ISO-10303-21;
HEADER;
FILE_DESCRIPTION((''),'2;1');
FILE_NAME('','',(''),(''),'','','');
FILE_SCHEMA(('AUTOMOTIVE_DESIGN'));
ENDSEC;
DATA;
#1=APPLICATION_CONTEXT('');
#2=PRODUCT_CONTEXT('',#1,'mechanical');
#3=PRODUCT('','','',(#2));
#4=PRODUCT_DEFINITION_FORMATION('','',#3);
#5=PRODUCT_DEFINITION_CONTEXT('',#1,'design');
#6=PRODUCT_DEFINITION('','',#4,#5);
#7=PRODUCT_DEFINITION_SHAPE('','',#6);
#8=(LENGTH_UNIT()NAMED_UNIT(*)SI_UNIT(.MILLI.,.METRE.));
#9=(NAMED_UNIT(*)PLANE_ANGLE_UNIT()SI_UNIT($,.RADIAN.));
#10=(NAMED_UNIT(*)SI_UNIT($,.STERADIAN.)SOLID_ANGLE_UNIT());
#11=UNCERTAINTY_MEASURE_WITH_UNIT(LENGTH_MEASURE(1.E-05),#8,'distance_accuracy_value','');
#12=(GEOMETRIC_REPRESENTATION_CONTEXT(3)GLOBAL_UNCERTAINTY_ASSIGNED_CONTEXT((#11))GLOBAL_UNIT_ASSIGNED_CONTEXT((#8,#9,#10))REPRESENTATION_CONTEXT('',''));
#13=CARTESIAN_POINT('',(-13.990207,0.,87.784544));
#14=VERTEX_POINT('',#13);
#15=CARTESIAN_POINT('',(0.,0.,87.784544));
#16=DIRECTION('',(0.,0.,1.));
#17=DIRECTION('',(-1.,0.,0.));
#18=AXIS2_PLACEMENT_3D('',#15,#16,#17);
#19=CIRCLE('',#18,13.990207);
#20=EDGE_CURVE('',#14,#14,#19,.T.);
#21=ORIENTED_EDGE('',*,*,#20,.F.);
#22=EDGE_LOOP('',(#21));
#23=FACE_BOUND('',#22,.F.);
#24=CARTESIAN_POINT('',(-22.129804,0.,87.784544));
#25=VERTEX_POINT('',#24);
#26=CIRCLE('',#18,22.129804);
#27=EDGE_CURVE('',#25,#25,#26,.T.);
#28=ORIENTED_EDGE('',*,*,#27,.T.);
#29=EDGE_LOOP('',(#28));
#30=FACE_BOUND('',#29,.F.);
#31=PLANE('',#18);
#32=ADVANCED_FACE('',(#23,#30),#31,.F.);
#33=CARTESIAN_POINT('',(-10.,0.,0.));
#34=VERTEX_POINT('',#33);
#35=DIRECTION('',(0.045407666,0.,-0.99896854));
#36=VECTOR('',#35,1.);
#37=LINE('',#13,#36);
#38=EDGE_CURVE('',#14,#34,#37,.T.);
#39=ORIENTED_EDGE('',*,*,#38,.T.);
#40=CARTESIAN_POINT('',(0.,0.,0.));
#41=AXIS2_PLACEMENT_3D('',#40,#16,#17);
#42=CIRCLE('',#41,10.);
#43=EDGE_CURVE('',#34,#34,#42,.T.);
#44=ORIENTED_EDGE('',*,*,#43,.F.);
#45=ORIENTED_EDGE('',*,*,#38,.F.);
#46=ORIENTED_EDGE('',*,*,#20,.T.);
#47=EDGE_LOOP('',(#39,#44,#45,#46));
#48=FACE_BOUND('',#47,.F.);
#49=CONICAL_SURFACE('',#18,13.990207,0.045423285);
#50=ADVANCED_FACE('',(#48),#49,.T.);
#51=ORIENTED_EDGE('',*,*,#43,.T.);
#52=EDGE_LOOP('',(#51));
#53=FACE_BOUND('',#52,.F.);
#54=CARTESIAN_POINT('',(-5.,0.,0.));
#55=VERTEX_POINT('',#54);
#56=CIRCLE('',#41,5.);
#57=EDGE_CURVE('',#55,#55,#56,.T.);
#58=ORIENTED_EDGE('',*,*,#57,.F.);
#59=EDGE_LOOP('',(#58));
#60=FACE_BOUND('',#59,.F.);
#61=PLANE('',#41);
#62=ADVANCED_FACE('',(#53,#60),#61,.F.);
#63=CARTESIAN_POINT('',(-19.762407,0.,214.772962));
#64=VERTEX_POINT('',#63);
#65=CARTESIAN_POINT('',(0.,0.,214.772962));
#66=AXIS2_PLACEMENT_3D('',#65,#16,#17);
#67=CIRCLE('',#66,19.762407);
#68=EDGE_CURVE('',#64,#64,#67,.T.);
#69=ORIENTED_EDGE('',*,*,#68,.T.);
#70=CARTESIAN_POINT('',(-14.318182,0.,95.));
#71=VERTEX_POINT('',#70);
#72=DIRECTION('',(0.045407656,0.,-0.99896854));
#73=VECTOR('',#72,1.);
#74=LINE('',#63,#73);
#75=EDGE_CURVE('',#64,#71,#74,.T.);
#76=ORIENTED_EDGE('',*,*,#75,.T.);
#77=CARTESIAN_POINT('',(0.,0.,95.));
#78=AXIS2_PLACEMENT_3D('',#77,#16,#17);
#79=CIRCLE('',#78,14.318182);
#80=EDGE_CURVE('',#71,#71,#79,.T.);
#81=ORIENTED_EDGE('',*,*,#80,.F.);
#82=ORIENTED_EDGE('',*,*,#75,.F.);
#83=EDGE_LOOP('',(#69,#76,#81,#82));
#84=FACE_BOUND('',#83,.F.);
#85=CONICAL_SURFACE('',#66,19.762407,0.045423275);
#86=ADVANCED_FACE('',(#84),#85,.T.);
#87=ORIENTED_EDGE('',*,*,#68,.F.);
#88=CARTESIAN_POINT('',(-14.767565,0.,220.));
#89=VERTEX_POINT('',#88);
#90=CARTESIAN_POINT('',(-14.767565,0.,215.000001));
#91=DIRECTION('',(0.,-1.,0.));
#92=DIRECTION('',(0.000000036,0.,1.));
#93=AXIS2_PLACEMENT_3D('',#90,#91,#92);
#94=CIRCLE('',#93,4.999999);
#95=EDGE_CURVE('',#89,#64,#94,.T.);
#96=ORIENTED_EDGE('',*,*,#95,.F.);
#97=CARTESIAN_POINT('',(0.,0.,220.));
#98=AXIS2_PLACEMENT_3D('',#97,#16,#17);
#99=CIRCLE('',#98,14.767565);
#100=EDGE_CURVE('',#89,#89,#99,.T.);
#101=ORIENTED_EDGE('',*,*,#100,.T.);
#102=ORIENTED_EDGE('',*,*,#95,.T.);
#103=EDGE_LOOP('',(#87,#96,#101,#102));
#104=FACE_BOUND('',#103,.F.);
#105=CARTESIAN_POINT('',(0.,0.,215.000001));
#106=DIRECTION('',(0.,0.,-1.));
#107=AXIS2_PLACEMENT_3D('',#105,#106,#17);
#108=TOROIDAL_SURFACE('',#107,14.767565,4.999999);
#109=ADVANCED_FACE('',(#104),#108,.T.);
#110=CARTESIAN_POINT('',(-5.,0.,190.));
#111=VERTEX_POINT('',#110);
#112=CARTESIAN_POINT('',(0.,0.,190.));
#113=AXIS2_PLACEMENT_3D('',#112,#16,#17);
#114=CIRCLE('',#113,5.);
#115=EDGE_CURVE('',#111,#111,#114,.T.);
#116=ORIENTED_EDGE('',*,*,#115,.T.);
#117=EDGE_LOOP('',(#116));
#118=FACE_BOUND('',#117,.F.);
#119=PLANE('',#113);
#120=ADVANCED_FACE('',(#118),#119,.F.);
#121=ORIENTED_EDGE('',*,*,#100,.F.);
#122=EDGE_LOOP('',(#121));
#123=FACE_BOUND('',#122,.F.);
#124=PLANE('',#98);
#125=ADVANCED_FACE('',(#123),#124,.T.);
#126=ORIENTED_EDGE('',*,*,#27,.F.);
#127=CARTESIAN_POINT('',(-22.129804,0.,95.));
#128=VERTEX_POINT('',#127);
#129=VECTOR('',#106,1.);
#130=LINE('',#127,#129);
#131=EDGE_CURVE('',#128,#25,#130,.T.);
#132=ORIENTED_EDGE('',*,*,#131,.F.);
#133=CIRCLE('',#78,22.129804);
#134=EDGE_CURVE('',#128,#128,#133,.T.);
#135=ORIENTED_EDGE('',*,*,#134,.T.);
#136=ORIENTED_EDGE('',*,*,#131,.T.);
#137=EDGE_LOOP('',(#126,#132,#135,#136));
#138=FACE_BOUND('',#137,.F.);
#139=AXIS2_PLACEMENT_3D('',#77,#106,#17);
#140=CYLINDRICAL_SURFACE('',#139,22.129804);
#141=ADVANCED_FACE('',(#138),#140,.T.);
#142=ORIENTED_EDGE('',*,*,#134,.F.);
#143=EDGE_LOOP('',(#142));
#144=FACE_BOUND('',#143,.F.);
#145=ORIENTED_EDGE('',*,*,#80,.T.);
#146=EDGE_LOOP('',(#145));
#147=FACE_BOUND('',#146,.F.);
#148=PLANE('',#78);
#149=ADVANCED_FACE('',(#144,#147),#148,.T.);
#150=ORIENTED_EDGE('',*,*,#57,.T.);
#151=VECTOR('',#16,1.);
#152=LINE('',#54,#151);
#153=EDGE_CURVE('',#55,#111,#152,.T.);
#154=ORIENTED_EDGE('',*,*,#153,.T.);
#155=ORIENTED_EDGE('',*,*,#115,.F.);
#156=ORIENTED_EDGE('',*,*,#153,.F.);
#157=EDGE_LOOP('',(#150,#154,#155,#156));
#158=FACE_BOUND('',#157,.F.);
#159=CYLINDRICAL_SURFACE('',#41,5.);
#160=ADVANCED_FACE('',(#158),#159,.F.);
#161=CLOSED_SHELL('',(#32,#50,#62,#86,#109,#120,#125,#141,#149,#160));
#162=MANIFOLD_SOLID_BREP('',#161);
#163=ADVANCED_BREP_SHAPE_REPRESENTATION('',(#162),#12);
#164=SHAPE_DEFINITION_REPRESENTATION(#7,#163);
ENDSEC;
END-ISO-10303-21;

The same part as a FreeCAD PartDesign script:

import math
import FreeCAD as App
import Part
import Sketcher
from FreeCAD import Vector

doc = App.newDocument("Part")
body = doc.addObject("PartDesign::Body", "Body")

# Sketch on XZ plane
sketch1 = doc.addObject("Sketcher::SketchObject", "Sketch")
body.addObject(sketch1)
sketch1.AttachmentSupport = (doc.XZ_Plane, [""])
sketch1.MapMode = "FlatFace"
sketch1.addGeometry([
    Part.LineSegment(Vector(-10, 0, 0), Vector(-5, 0, 0)),  # 0
    Part.LineSegment(Vector(-5, 0, 0), Vector(-5, 190, 0)),  # 1
    Part.LineSegment(Vector(-5, 190, 0), Vector(0, 190, 0)),  # 2
    Part.LineSegment(Vector(0, 190, 0), Vector(0, 220, 0)),  # 3
    Part.LineSegment(Vector(0, 220, 0), Vector(-14.8, 220, 0)),  # 4
    Part.ArcOfCircle(Part.Circle(Vector(-14.8, 215, 0), Vector(0, 0, 1), 5), math.radians(90), math.radians(183)),  # 5
    Part.LineSegment(Vector(-19.8, 214.8, 0), Vector(-14.3, 95, 0)),  # 6
    Part.LineSegment(Vector(-14.3, 95, 0), Vector(-22.1, 95, 0)),  # 7
    Part.LineSegment(Vector(-22.1, 95, 0), Vector(-22.1, 87.8, 0)),  # 8
    Part.LineSegment(Vector(-22.1, 87.8, 0), Vector(-14, 87.8, 0)),  # 9
    Part.LineSegment(Vector(-14, 87.8, 0), Vector(-10, 0, 0)),  # 10
], False)
sketch1.addConstraint([
    Sketcher.Constraint("Coincident", 0, 2, 1, 1),
    Sketcher.Constraint("Coincident", 1, 2, 2, 1),
    Sketcher.Constraint("Coincident", 2, 2, 3, 1),
    Sketcher.Constraint("Coincident", 3, 2, 4, 1),
    Sketcher.Constraint("Tangent", 4, 2, 5, 1),
    Sketcher.Constraint("Tangent", 5, 2, 6, 1),
    Sketcher.Constraint("Coincident", 6, 2, 7, 1),
    Sketcher.Constraint("Coincident", 7, 2, 8, 1),
    Sketcher.Constraint("Coincident", 8, 2, 9, 1),
    Sketcher.Constraint("Coincident", 9, 2, 10, 1),
    Sketcher.Constraint("Coincident", 10, 2, 0, 1),
    Sketcher.Constraint("Horizontal", 0),
    Sketcher.Constraint("Vertical", 1),
    Sketcher.Constraint("Horizontal", 2),
    Sketcher.Constraint("Vertical", 3),
    Sketcher.Constraint("Horizontal", 4),
    Sketcher.Constraint("Horizontal", 7),
    Sketcher.Constraint("Vertical", 8),
    Sketcher.Constraint("Horizontal", 9),
    Sketcher.Constraint("PointOnObject", 0, 2, -1),
    Sketcher.Constraint("PointOnObject", 2, 2, -2),
    Sketcher.Constraint("Parallel", 6, 10),
    Sketcher.Constraint("Equal", 0, 2),
    Sketcher.Constraint("Radius", 5, 4.999999),
    Sketcher.Constraint("DistanceX", 0, 1, 0, 2, 5.0),
    Sketcher.Constraint("DistanceY", 1, 1, 1, 2, 190.0),
    Sketcher.Constraint("DistanceY", 3, 1, 3, 2, 30.0),
    Sketcher.Constraint("DistanceY", -1, 1, 6, 2, 95.0),
    Sketcher.Constraint("DistanceX", 4, 2, 4, 1, 14.767565),
    Sketcher.Constraint("DistanceX", 7, 2, 7, 1, 7.811622),
    Sketcher.Constraint("DistanceX", 9, 1, 9, 2, 8.139597),
    Sketcher.Constraint("DistanceY", 8, 2, 8, 1, 7.215456),
])
revolution = doc.addObject("PartDesign::Revolution", "Revolution")
body.addObject(revolution)
revolution.Profile = sketch1
revolution.ReferenceAxis = (sketch1, ["V_Axis"])
revolution.Angle = 360

doc.recompute()
